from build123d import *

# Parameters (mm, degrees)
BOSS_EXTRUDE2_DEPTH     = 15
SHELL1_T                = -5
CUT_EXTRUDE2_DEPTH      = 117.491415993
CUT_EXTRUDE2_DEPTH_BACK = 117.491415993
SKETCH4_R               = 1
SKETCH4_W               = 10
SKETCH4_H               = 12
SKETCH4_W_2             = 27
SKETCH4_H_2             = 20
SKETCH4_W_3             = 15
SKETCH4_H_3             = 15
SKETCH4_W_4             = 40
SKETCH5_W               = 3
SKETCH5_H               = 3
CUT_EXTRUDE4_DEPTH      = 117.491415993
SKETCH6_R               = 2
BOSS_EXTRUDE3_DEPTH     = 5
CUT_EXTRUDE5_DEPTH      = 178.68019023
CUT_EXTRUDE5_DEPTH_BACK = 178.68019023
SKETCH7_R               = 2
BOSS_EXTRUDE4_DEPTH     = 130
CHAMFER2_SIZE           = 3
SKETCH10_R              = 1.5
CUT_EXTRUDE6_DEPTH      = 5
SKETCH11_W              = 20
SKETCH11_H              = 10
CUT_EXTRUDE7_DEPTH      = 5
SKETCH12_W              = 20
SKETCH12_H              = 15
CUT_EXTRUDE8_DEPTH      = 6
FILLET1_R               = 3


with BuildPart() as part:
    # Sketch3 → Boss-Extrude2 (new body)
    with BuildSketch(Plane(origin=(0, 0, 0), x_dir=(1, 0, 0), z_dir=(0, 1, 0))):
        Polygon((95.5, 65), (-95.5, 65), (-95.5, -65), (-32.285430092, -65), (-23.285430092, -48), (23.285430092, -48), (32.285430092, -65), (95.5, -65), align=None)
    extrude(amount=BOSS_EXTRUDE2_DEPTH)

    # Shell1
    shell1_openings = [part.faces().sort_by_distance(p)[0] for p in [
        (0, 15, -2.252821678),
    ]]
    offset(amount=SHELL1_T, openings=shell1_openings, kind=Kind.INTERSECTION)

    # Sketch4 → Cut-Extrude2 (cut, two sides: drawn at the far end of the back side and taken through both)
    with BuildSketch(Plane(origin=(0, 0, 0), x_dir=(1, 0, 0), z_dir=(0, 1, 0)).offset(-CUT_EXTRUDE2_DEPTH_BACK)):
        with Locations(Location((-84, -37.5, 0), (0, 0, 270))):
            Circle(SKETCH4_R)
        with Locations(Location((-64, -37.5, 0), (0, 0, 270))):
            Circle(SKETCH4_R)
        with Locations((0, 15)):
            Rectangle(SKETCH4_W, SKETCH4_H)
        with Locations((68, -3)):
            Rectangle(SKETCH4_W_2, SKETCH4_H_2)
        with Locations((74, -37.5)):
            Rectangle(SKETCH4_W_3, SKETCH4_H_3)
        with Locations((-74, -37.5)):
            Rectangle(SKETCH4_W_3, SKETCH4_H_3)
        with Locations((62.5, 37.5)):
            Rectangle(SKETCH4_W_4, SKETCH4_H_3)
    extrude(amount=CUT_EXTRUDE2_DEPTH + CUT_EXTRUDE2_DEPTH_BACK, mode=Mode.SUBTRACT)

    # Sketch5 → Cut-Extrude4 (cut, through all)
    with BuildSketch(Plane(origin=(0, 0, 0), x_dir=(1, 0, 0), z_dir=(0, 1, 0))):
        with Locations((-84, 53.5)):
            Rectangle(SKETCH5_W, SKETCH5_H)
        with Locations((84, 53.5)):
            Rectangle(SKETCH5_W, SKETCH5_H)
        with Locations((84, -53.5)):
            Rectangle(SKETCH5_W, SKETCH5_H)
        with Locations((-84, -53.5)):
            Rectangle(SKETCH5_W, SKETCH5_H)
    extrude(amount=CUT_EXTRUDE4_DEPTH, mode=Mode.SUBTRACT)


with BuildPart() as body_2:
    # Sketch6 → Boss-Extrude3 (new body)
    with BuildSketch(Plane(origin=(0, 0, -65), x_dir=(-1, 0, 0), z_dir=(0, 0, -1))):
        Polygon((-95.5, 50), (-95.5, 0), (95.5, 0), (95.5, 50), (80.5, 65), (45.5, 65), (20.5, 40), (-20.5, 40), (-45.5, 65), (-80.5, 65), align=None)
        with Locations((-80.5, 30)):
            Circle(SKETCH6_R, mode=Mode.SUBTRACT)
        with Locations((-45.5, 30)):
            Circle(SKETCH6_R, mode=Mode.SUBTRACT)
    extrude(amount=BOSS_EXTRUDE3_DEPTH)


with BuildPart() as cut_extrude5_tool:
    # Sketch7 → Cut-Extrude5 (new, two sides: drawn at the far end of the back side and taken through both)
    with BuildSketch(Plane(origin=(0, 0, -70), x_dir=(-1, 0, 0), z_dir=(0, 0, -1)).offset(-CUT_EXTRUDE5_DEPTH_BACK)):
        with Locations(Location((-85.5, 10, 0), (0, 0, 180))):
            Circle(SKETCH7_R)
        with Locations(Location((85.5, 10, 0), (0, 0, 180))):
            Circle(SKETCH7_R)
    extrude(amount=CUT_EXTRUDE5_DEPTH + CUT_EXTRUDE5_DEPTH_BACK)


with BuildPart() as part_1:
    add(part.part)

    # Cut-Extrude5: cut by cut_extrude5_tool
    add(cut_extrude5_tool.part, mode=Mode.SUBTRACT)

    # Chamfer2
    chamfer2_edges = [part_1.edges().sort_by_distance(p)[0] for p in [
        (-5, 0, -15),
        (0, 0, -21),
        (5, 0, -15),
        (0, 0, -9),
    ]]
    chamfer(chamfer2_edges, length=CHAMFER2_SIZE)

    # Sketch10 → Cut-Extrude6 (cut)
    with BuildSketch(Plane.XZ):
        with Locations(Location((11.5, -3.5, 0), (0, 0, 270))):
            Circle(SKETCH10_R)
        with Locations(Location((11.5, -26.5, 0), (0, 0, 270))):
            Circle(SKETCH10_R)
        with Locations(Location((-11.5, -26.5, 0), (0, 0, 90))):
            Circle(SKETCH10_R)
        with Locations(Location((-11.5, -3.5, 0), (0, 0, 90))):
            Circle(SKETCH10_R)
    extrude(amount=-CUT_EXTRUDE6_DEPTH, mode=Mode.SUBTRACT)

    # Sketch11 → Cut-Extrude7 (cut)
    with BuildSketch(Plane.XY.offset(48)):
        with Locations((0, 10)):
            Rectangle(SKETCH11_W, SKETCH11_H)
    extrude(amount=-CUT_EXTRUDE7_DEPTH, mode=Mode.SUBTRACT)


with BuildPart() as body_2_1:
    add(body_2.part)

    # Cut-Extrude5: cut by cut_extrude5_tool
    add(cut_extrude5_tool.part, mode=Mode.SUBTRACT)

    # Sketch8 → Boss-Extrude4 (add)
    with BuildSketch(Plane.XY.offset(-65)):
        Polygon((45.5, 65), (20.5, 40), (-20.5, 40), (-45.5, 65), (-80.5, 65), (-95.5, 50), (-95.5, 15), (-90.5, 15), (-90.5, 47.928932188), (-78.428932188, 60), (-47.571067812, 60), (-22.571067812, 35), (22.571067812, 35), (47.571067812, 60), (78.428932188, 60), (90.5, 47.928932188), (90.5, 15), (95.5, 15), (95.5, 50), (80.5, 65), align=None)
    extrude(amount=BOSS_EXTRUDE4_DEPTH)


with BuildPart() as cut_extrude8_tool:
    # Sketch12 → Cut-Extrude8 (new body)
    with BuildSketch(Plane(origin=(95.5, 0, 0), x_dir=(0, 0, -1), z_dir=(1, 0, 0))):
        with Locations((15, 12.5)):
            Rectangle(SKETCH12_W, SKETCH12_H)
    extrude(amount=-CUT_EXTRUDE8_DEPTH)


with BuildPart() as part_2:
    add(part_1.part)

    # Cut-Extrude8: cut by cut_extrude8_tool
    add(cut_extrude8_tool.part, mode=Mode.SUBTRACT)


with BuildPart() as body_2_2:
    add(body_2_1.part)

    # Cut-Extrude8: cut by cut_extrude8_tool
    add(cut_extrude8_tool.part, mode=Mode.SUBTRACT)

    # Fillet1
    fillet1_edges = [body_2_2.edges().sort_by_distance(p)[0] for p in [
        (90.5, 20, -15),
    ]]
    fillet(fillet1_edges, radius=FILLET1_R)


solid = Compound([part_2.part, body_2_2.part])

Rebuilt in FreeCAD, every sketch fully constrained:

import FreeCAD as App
import Part
import Sketcher


def edges_at(feature, points):
    """Names of the edges that pass closest to the given points."""
    edges = feature.Shape.Edges
    near = lambda p: min(range(len(edges)), key=lambda i: edges[i].distToShape(Part.Vertex(*p))[0])
    return sorted({f"Edge{near(p) + 1}" for p in points})


def faces_at(feature, points):
    """Names of the faces that lie closest to the given points."""
    faces = feature.Shape.Faces
    near = lambda p: min(range(len(faces)), key=lambda i: faces[i].distToShape(Part.Vertex(*p))[0])
    return sorted({f"Face{near(p) + 1}" for p in points})

doc = App.newDocument("Part")
body = doc.addObject("PartDesign::Body", "Body")

# Sketch on XZ plane
sketch1 = doc.addObject("Sketcher::SketchObject", "Sketch")
body.addObject(sketch1)
sketch1.AttachmentSupport = (doc.XZ_Plane, [""])
sketch1.MapMode = "FlatFace"
sketch1.addGeometry([
    Part.LineSegment(App.Vector(96, -65, 0), App.Vector(-96, -65, 0)),  # 0
    Part.LineSegment(App.Vector(-96, -65, 0), App.Vector(-96, 65, 0)),  # 1
    Part.LineSegment(App.Vector(-96, 65, 0), App.Vector(-32, 65, 0)),  # 2
    Part.LineSegment(App.Vector(-32, 65, 0), App.Vector(-23, 48, 0)),  # 3
    Part.LineSegment(App.Vector(-23, 48, 0), App.Vector(23, 48, 0)),  # 4
    Part.LineSegment(App.Vector(23, 48, 0), App.Vector(32, 65, 0)),  # 5
    Part.LineSegment(App.Vector(32, 65, 0), App.Vector(96, 65, 0)),  # 6
    Part.LineSegment(App.Vector(96, 65, 0), App.Vector(96, -65, 0)),  # 7
], False)
sketch1.addConstraint([
    Sketcher.Constraint("Coincident", 0, 2, 1, 1),
    Sketcher.Constraint("Coincident", 1, 2, 2, 1),
    Sketcher.Constraint("Coincident", 2, 2, 3, 1),
    Sketcher.Constraint("Coincident", 3, 2, 4, 1),
    Sketcher.Constraint("Coincident", 4, 2, 5, 1),
    Sketcher.Constraint("Coincident", 5, 2, 6, 1),
    Sketcher.Constraint("Coincident", 6, 2, 7, 1),
    Sketcher.Constraint("Coincident", 7, 2, 0, 1),
    Sketcher.Constraint("Horizontal", 0),
    Sketcher.Constraint("Vertical", 1),
    Sketcher.Constraint("Horizontal", 2),
    Sketcher.Constraint("Horizontal", 4),
    Sketcher.Constraint("Horizontal", 6),
    Sketcher.Constraint("Vertical", 7),
    Sketcher.Constraint("Symmetric", 0, 2, 6, 2, -1, 1),
    Sketcher.Constraint("Symmetric", 2, 2, 5, 2, -2),
    Sketcher.Constraint("Equal", 3, 5),
    Sketcher.Constraint("DistanceX", 0, 2, 0, 1, 191.0),
    Sketcher.Constraint("DistanceY", 1, 1, 1, 2, 130.0),
    Sketcher.Constraint("DistanceY", -1, 1, 3, 2, 48.0),
    Sketcher.Constraint("DistanceX", 2, 2, 3, 2, 9.0),
    Sketcher.Constraint("DistanceX", 2, 1, 2, 2, 63.21457),
])
pad1 = doc.addObject("PartDesign::Pad", "Pad")
body.addObject(pad1)
pad1.Profile = sketch1
pad1.Length = 15
pad1.Reversed = True
doc.recompute()

thickness = doc.addObject("PartDesign::Thickness", "Thickness")
body.addObject(thickness)
thickness.Base = (pad1, faces_at(pad1, [(0, 15, 0)]))
thickness.Value = 5
thickness.Reversed = True
thickness.Join = "Intersection"

# Sketch on XZ plane
sketch2 = doc.addObject("Sketcher::SketchObject", "Sketch001")
body.addObject(sketch2)
sketch2.AttachmentSupport = (doc.XZ_Plane, [""])
sketch2.MapMode = "FlatFace"
sketch2.addGeometry([
    Part.Circle(App.Vector(-84, 37.5, 0), App.Vector(0, 0, 1), 1),  # 0
    Part.Circle(App.Vector(-64, 37.5, 0), App.Vector(0, 0, 1), 1),  # 1
    Part.LineSegment(App.Vector(-5, -21, 0), App.Vector(-5, -9, 0)),  # 2
    Part.LineSegment(App.Vector(-5, -9, 0), App.Vector(5, -9, 0)),  # 3
    Part.LineSegment(App.Vector(5, -9, 0), App.Vector(5, -21, 0)),  # 4
    Part.LineSegment(App.Vector(5, -21, 0), App.Vector(-5, -21, 0)),  # 5
    Part.LineSegment(App.Vector(54.5, -7, 0), App.Vector(54.5, 13, 0)),  # 6
    Part.LineSegment(App.Vector(54.5, 13, 0), App.Vector(81.5, 13, 0)),  # 7
    Part.LineSegment(App.Vector(81.5, 13, 0), App.Vector(81.5, -7, 0)),  # 8
    Part.LineSegment(App.Vector(81.5, -7, 0), App.Vector(54.5, -7, 0)),  # 9
    Part.LineSegment(App.Vector(66.5, 30, 0), App.Vector(66.5, 45, 0)),  # 10
    Part.LineSegment(App.Vector(66.5, 45, 0), App.Vector(81.5, 45, 0)),  # 11
    Part.LineSegment(App.Vector(81.5, 45, 0), App.Vector(81.5, 30, 0)),  # 12
    Part.LineSegment(App.Vector(81.5, 30, 0), App.Vector(66.5, 30, 0)),  # 13
    Part.LineSegment(App.Vector(-81.5, 30, 0), App.Vector(-81.5, 45, 0)),  # 14
    Part.LineSegment(App.Vector(-81.5, 45, 0), App.Vector(-66.5, 45, 0)),  # 15
    Part.LineSegment(App.Vector(-66.5, 45, 0), App.Vector(-66.5, 30, 0)),  # 16
    Part.LineSegment(App.Vector(-66.5, 30, 0), App.Vector(-81.5, 30, 0)),  # 17
    Part.LineSegment(App.Vector(42.5, -45, 0), App.Vector(42.5, -30, 0)),  # 18
    Part.LineSegment(App.Vector(42.5, -30, 0), App.Vector(82.5, -30, 0)),  # 19
    Part.LineSegment(App.Vector(82.5, -30, 0), App.Vector(82.5, -45, 0)),  # 20
    Part.LineSegment(App.Vector(82.5, -45, 0), App.Vector(42.5, -45, 0)),  # 21
], False)
sketch2.addConstraint([
    Sketcher.Constraint("Coincident", 2, 2, 3, 1),
    Sketcher.Constraint("Coincident", 3, 2, 4, 1),
    Sketcher.Constraint("Coincident", 4, 2, 5, 1),
    Sketcher.Constraint("Coincident", 5, 2, 2, 1),
    Sketcher.Constraint("Coincident", 6, 2, 7, 1),
    Sketcher.Constraint("Coincident", 7, 2, 8, 1),
    Sketcher.Constraint("Coincident", 8, 2, 9, 1),
    Sketcher.Constraint("Coincident", 9, 2, 6, 1),
    Sketcher.Constraint("Coincident", 10, 2, 11, 1),
    Sketcher.Constraint("Coincident", 11, 2, 12, 1),
    Sketcher.Constraint("Coincident", 12, 2, 13, 1),
    Sketcher.Constraint("Coincident", 13, 2, 10, 1),
    Sketcher.Constraint("Coincident", 14, 2, 15, 1),
    Sketcher.Constraint("Coincident", 15, 2, 16, 1),
    Sketcher.Constraint("Coincident", 16, 2, 17, 1),
    Sketcher.Constraint("Coincident", 17, 2, 14, 1),
    Sketcher.Constraint("Coincident", 18, 2, 19, 1),
    Sketcher.Constraint("Coincident", 19, 2, 20, 1),
    Sketcher.Constraint("Coincident", 20, 2, 21, 1),
    Sketcher.Constraint("Coincident", 21, 2, 18, 1),
    Sketcher.Constraint("Vertical", 2),
    Sketcher.Constraint("Horizontal", 3),
    Sketcher.Constraint("Vertical", 4),
    Sketcher.Constraint("Horizontal", 5),
    Sketcher.Constraint("Vertical", 6),
    Sketcher.Constraint("Horizontal", 7),
    Sketcher.Constraint("Vertical", 8),
    Sketcher.Constraint("Horizontal", 9),
    Sketcher.Constraint("Vertical", 10),
    Sketcher.Constraint("Horizontal", 11),
    Sketcher.Constraint("Vertical", 12),
    Sketcher.Constraint("Horizontal", 13),
    Sketcher.Constraint("Vertical", 14),
    Sketcher.Constraint("Horizontal", 15),
    Sketcher.Constraint("Vertical", 16),
    Sketcher.Constraint("Horizontal", 17),
    Sketcher.Constraint("Vertical", 18),
    Sketcher.Constraint("Horizontal", 19),
    Sketcher.Constraint("Vertical", 20),
    Sketcher.Constraint("Horizontal", 21),
    Sketcher.Constraint("Equal", 0, 1),
    Sketcher.Constraint("Symmetric", 11, 2, 14, 2, -2),
    Sketcher.Constraint("Symmetric", 13, 2, 16, 2, -2),
    Sketcher.Constraint("Horizontal", 0, 3, 1, 3),
    Sketcher.Constraint("Vertical", 8, 2, 11, 2),
    Sketcher.Constraint("Equal", 17, 10),
    Sketcher.Constraint("Equal", 16, 18),
    Sketcher.Constraint("Diameter", 0, 2.0),
    Sketcher.Constraint("DistanceX", 3, 1, 3, 2, 10.0),
    Sketcher.Constraint("DistanceX", 7, 1, 7, 2, 27.0),
    Sketcher.Constraint("DistanceX", 11, 1, 11, 2, 15.0),
    Sketcher.Constraint("DistanceX", 19, 1, 19, 2, 40.0),
    Sketcher.Constraint("DistanceY", 2, 1, 2, 2, 12.0),
    Sketcher.Constraint("DistanceY", 6, 1, 6, 2, 20.0),
    Sketcher.Constraint("DistanceX", 0, 3, -1, 1, 84.0),
    Sketcher.Constraint("DistanceX", 1, 3, -1, 1, 64.0),
    Sketcher.Constraint("DistanceX", 2, 2, -1, 1, 5.0),
    Sketcher.Constraint("DistanceY", 2, 2, -1, 1, 9.0),
    Sketcher.Constraint("DistanceY", -1, 1, 6, 2, 13.0),
    Sketcher.Constraint("DistanceY", -1, 1, 10, 2, 45.0),
    Sketcher.Constraint("DistanceY", 18, 2, -1, 1, 30.0),
    Sketcher.Constraint("DistanceX", 18, 2, 9, 2, 12.0),
    Sketcher.Constraint("DistanceY", -1, 1, 0, 3, 37.5),
    Sketcher.Constraint("DistanceX", -1, 1, 6, 2, 54.5),
])
pocket1 = doc.addObject("PartDesign::Pocket", "Pocket")
body.addObject(pocket1)
pocket1.Profile = sketch2
pocket1.Type = "ThroughAll"
pocket1.Midplane = True

# Sketch on XZ plane
sketch3 = doc.addObject("Sketcher::SketchObject", "Sketch002")
body.addObject(sketch3)
sketch3.AttachmentSupport = (doc.XZ_Plane, [""])
sketch3.MapMode = "FlatFace"
sketch3.addGeometry([
    Part.LineSegment(App.Vector(-85.5, -55, 0), App.Vector(-85.5, -52, 0)),  # 0
    Part.LineSegment(App.Vector(-85.5, -52, 0), App.Vector(-82.5, -52, 0)),  # 1
    Part.LineSegment(App.Vector(-82.5, -52, 0), App.Vector(-82.5, -55, 0)),  # 2
    Part.LineSegment(App.Vector(-82.5, -55, 0), App.Vector(-85.5, -55, 0)),  # 3
    Part.LineSegment(App.Vector(82.5, -55, 0), App.Vector(82.5, -52, 0)),  # 4
    Part.LineSegment(App.Vector(82.5, -52, 0), App.Vector(85.5, -52, 0)),  # 5
    Part.LineSegment(App.Vector(85.5, -52, 0), App.Vector(85.5, -55, 0)),  # 6
    Part.LineSegment(App.Vector(85.5, -55, 0), App.Vector(82.5, -55, 0)),  # 7
    Part.LineSegment(App.Vector(82.5, 52, 0), App.Vector(82.5, 55, 0)),  # 8
    Part.LineSegment(App.Vector(82.5, 55, 0), App.Vector(85.5, 55, 0)),  # 9
    Part.LineSegment(App.Vector(85.5, 55, 0), App.Vector(85.5, 52, 0)),  # 10
    Part.LineSegment(App.Vector(85.5, 52, 0), App.Vector(82.5, 52, 0)),  # 11
    Part.LineSegment(App.Vector(-85.5, 52, 0), App.Vector(-85.5, 55, 0)),  # 12
    Part.LineSegment(App.Vector(-85.5, 55, 0), App.Vector(-82.5, 55, 0)),  # 13
    Part.LineSegment(App.Vector(-82.5, 55, 0), App.Vector(-82.5, 52, 0)),  # 14
    Part.LineSegment(App.Vector(-82.5, 52, 0), App.Vector(-85.5, 52, 0)),  # 15
], False)
sketch3.addConstraint([
    Sketcher.Constraint("Coincident", 0, 2, 1, 1),
    Sketcher.Constraint("Coincident", 1, 2, 2, 1),
    Sketcher.Constraint("Coincident", 2, 2, 3, 1),
    Sketcher.Constraint("Coincident", 3, 2, 0, 1),
    Sketcher.Constraint("Coincident", 4, 2, 5, 1),
    Sketcher.Constraint("Coincident", 5, 2, 6, 1),
    Sketcher.Constraint("Coincident", 6, 2, 7, 1),
    Sketcher.Constraint("Coincident", 7, 2, 4, 1),
    Sketcher.Constraint("Coincident", 8, 2, 9, 1),
    Sketcher.Constraint("Coincident", 9, 2, 10, 1),
    Sketcher.Constraint("Coincident", 10, 2, 11, 1),
    Sketcher.Constraint("Coincident", 11, 2, 8, 1),
    Sketcher.Constraint("Coincident", 12, 2, 13, 1),
    Sketcher.Constraint("Coincident", 13, 2, 14, 1),
    Sketcher.Constraint("Coincident", 14, 2, 15, 1),
    Sketcher.Constraint("Coincident", 15, 2, 12, 1),
    Sketcher.Constraint("Vertical", 0),
    Sketcher.Constraint("Horizontal", 1),
    Sketcher.Constraint("Vertical", 2),
    Sketcher.Constraint("Horizontal", 3),
    Sketcher.Constraint("Vertical", 4),
    Sketcher.Constraint("Horizontal", 5),
    Sketcher.Constraint("Vertical", 6),
    Sketcher.Constraint("Horizontal", 7),
    Sketcher.Constraint("Vertical", 8),
    Sketcher.Constraint("Horizontal", 9),
    Sketcher.Constraint("Vertical", 10),
    Sketcher.Constraint("Horizontal", 11),
    Sketcher.Constraint("Vertical", 12),
    Sketcher.Constraint("Horizontal", 13),
    Sketcher.Constraint("Vertical", 14),
    Sketcher.Constraint("Horizontal", 15),
    Sketcher.Constraint("Symmetric", 2, 2, 8, 2, -1, 1),
    Sketcher.Constraint("Symmetric", 0, 2, 10, 2, -1, 1),
    Sketcher.Constraint("Symmetric", 6, 2, 12, 2, -1, 1),
    Sketcher.Constraint("Symmetric", 4, 2, 14, 2, -1, 1),
    Sketcher.Constraint("Symmetric", 1, 2, 4, 2, -2),
    Sketcher.Constraint("Symmetric", 3, 2, 6, 2, -2),
    Sketcher.Constraint("Equal", 15, 0),
    Sketcher.Constraint("DistanceX", 1, 1, 1, 2, 3.0),
    Sketcher.Constraint("DistanceY", 0, 2, -1, 1, 52.0),
    Sketcher.Constraint("DistanceX", 1, 2, 4, 2, 165.0),
])
pocket2 = doc.addObject("PartDesign::Pocket", "Pocket001")
body.addObject(pocket2)
pocket2.Profile = sketch3
pocket2.Type = "ThroughAll"
body2 = doc.addObject("PartDesign::Body", "Body001")

# Sketch on XY plane
sketch4 = doc.addObject("Sketcher::SketchObject", "Sketch003")
body2.addObject(sketch4)
sketch4.AttachmentSupport = (doc.getObject("XY_Plane001"), [""])
sketch4.MapMode = "FlatFace"
sketch4.AttachmentOffset = App.Placement(App.Vector(0, 0, -65), App.Rotation())
sketch4.addGeometry([
    Part.LineSegment(App.Vector(95.5, 50, 0), App.Vector(95.5, 0, 0)),  # 0
    Part.LineSegment(App.Vector(95.5, 0, 0), App.Vector(-95.5, 0, 0)),  # 1
    Part.LineSegment(App.Vector(-95.5, 0, 0), App.Vector(-95.5, 50, 0)),  # 2
    Part.LineSegment(App.Vector(-95.5, 50, 0), App.Vector(-80.5, 65, 0)),  # 3
    Part.LineSegment(App.Vector(-80.5, 65, 0), App.Vector(-45.5, 65, 0)),  # 4
    Part.LineSegment(App.Vector(-45.5, 65, 0), App.Vector(-20.5, 40, 0)),  # 5
    Part.LineSegment(App.Vector(-20.5, 40, 0), App.Vector(20.5, 40, 0)),  # 6
    Part.LineSegment(App.Vector(20.5, 40, 0), App.Vector(45.5, 65, 0)),  # 7
    Part.LineSegment(App.Vector(45.5, 65, 0), App.Vector(80.5, 65, 0)),  # 8
    Part.LineSegment(App.Vector(80.5, 65, 0), App.Vector(95.5, 50, 0)),  # 9
    Part.Circle(App.Vector(80.5, 30, 0), App.Vector(0, 0, 1), 2),  # 10
    Part.Circle(App.Vector(45.5, 30, 0), App.Vector(0, 0, 1), 2),  # 11
], False)
sketch4.addConstraint([
    Sketcher.Constraint("Coincident", 0, 2, 1, 1),
    Sketcher.Constraint("Coincident", 1, 2, 2, 1),
    Sketcher.Constraint("Coincident", 2, 2, 3, 1),
    Sketcher.Constraint("Coincident", 3, 2, 4, 1),
    Sketcher.Constraint("Coincident", 4, 2, 5, 1),
    Sketcher.Constraint("Coincident", 5, 2, 6, 1),
    Sketcher.Constraint("Coincident", 6, 2, 7, 1),
    Sketcher.Constraint("Coincident", 7, 2, 8, 1),
    Sketcher.Constraint("Coincident", 8, 2, 9, 1),
    Sketcher.Constraint("Coincident", 9, 2, 0, 1),
    Sketcher.Constraint("Vertical", 0),
    Sketcher.Constraint("Horizontal", 1),
    Sketcher.Constraint("Vertical", 2),
    Sketcher.Constraint("Horizontal", 4),
    Sketcher.Constraint("Horizontal", 6),
    Sketcher.Constraint("Horizontal", 8),
    Sketcher.Constraint("Equal", 10, 11),
    Sketcher.Constraint("Symmetric", 0, 2, 1, 2, -1, 1),
    Sketcher.Constraint("Symmetric", 4, 2, 7, 2, -2),
    Sketcher.Constraint("Perpendicular", 3, 5),
    Sketcher.Constraint("Perpendicular", 5, 7),
    Sketcher.Constraint("Perpendicular", 7, 9),
    Sketcher.Constraint("Horizontal", 10, 3, 11, 3),
    Sketcher.Constraint("Horizontal", 2, 2, 9, 2),
    Sketcher.Constraint("Vertical", 11, 3, 7, 2),
    Sketcher.Constraint("Vertical", 10, 3, 8, 2),
    Sketcher.Constraint("Equal", 4, 8),
    Sketcher.Constraint("Diameter", 10, 4.0),
    Sketcher.Constraint("DistanceX", 1, 2, 1, 1, 191.0),
    Sketcher.Constraint("DistanceX", 4, 1, 4, 2, 35.0),
    Sketcher.Constraint("DistanceX", 6, 1, 6, 2, 41.0),
    Sketcher.Constraint("DistanceY", 0, 2, 0, 1, 50.0),
    Sketcher.Constraint("DistanceY", -1, 1, 10, 3, 30.0),
    Sketcher.Constraint("DistanceY", -1, 1, 3, 2, 65.0),
])
pad2 = doc.addObject("PartDesign::Pad", "Pad001")
body2.addObject(pad2)
pad2.Profile = sketch4
pad2.Length = 5
pad2.Reversed = True
body3 = doc.addObject("PartDesign::Body", "Body002")
body3.AllowCompound = True

# Sketch on XY plane
sketch5 = doc.addObject("Sketcher::SketchObject", "Sketch004")
body3.addObject(sketch5)
sketch5.AttachmentSupport = (doc.getObject("XY_Plane002"), [""])
sketch5.MapMode = "FlatFace"
sketch5.AttachmentOffset = App.Placement(App.Vector(0, 0, -70), App.Rotation())
sketch5.addGeometry([
    Part.Circle(App.Vector(85.5, 10, 0), App.Vector(0, 0, 1), 2),
    Part.Circle(App.Vector(-85.5, 10, 0), App.Vector(0, 0, 1), 2),
], False)
sketch5.addConstraint([
    Sketcher.Constraint("Equal", 0, 1),
    Sketcher.Constraint("Symmetric", 0, 3, 1, 3, -2),
    Sketcher.Constraint("Diameter", 0, 4.0),
    Sketcher.Constraint("DistanceY", -1, 1, 0, 3, 10.0),
    Sketcher.Constraint("DistanceX", 1, 3, 0, 3, 171.0),
])
pad3 = doc.addObject("PartDesign::Pad", "Pad002")
body3.addObject(pad3)
pad3.Profile = sketch5
pad3.Type = "TwoLengths"
pad3.Length = 178.68019
pad3.Length2 = 178.68019
pad3.Reversed = True
doc.recompute()

body4 = doc.addObject("PartDesign::Body", "Body003")
body4.BaseFeature = body3
boolean = doc.addObject("PartDesign::Boolean", "Boolean")
body.addObject(boolean)
boolean.Type = "Cut"
boolean.addObjects([body4])
doc.recompute()

chamfer = doc.addObject("PartDesign::Chamfer", "Chamfer")
body.addObject(chamfer)
chamfer.Base = (boolean, edges_at(boolean, [
    (-5, 0, -15),
    (0, 0, -21),
    (5, 0, -15),
    (0, 0, -9),
]))
chamfer.Size = 3

# Sketch on XZ plane
sketch6 = doc.addObject("Sketcher::SketchObject", "Sketch005")
body.addObject(sketch6)
sketch6.AttachmentSupport = (doc.XZ_Plane, [""])
sketch6.MapMode = "FlatFace"
sketch6.addGeometry([
    Part.Circle(App.Vector(11.5, -3.5, 0), App.Vector(0, 0, 1), 1.5),
    Part.Circle(App.Vector(11.5, -26.5, 0), App.Vector(0, 0, 1), 1.5),
    Part.Circle(App.Vector(-11.5, -26.5, 0), App.Vector(0, 0, 1), 1.5),
    Part.Circle(App.Vector(-11.5, -3.5, 0), App.Vector(0, 0, 1), 1.5),
], False)
sketch6.addConstraint([
    Sketcher.Constraint("Equal", 0, 1),
    Sketcher.Constraint("Equal", 1, 2),
    Sketcher.Constraint("Equal", 2, 3),
    Sketcher.Constraint("Symmetric", 1, 3, 2, 3, -2),
    Sketcher.Constraint("Symmetric", 0, 3, 3, 3, -2),
    Sketcher.Constraint("Vertical", 0, 3, 1, 3),
    Sketcher.Constraint("Diameter", 0, 3.0),
    Sketcher.Constraint("DistanceY", 1, 3, 0, 3, 23.0),
    Sketcher.Constraint("DistanceX", 2, 3, 1, 3, 23.0),
    Sketcher.Constraint("DistanceY", 0, 3, -1, 1, 3.5),
])
pocket3 = doc.addObject("PartDesign::Pocket", "Pocket002")
body.addObject(pocket3)
pocket3.Profile = sketch6
pocket3.Length = 5

# Sketch on XY plane
sketch7 = doc.addObject("Sketcher::SketchObject", "Sketch006")
body.addObject(sketch7)
sketch7.AttachmentSupport = (doc.XY_Plane, [""])
sketch7.MapMode = "FlatFace"
sketch7.AttachmentOffset = App.Placement(App.Vector(0, 0, 48), App.Rotation())
sketch7.addGeometry([
    Part.LineSegment(App.Vector(-10, 15, 0), App.Vector(-10, 5, 0)),
    Part.LineSegment(App.Vector(-10, 5, 0), App.Vector(10, 5, 0)),
    Part.LineSegment(App.Vector(10, 5, 0), App.Vector(10, 15, 0)),
    Part.LineSegment(App.Vector(10, 15, 0), App.Vector(-10, 15, 0)),
], False)
sketch7.addConstraint([
    Sketcher.Constraint("Coincident", 0, 2, 1, 1),
    Sketcher.Constraint("Coincident", 1, 2, 2, 1),
    Sketcher.Constraint("Coincident", 2, 2, 3, 1),
    Sketcher.Constraint("Coincident", 3, 2, 0, 1),
    Sketcher.Constraint("Vertical", 0),
    Sketcher.Constraint("Horizontal", 1),
    Sketcher.Constraint("Vertical", 2),
    Sketcher.Constraint("Horizontal", 3),
    Sketcher.Constraint("DistanceX", 1, 1, 1, 2, 20.0),
    Sketcher.Constraint("DistanceY", 0, 2, 0, 1, 10.0),
    Sketcher.Constraint("DistanceX", 0, 2, -1, 1, 10.0),
    Sketcher.Constraint("DistanceY", -1, 1, 0, 2, 5.0),
])
pocket4 = doc.addObject("PartDesign::Pocket", "Pocket003")
body.addObject(pocket4)
pocket4.Profile = sketch7
pocket4.Length = 5
doc.recompute()

boolean2 = doc.addObject("PartDesign::Boolean", "Boolean001")
body2.addObject(boolean2)
boolean2.Type = "Cut"
boolean2.addObjects([body3])

# Sketch on XY plane
sketch8 = doc.addObject("Sketcher::SketchObject", "Sketch007")
body2.addObject(sketch8)
sketch8.AttachmentSupport = (doc.getObject("XY_Plane001"), [""])
sketch8.MapMode = "FlatFace"
sketch8.AttachmentOffset = App.Placement(App.Vector(0, 0, -65), App.Rotation())
sketch8.addGeometry([
    Part.LineSegment(App.Vector(46, 65, 0), App.Vector(20, 40, 0)),  # 0
    Part.LineSegment(App.Vector(20, 40, 0), App.Vector(-20, 40, 0)),  # 1
    Part.LineSegment(App.Vector(-20, 40, 0), App.Vector(-46, 65, 0)),  # 2
    Part.LineSegment(App.Vector(-46, 65, 0), App.Vector(-80, 65, 0)),  # 3
    Part.LineSegment(App.Vector(-80, 65, 0), App.Vector(-96, 50, 0)),  # 4
    Part.LineSegment(App.Vector(-96, 50, 0), App.Vector(-96, 15, 0)),  # 5
    Part.LineSegment(App.Vector(-96, 15, 0), App.Vector(-90, 15, 0)),  # 6
    Part.LineSegment(App.Vector(-90, 15, 0), App.Vector(-90, 48, 0)),  # 7
    Part.LineSegment(App.Vector(-90, 48, 0), App.Vector(-78, 60, 0)),  # 8
    Part.LineSegment(App.Vector(-78, 60, 0), App.Vector(-48, 60, 0)),  # 9
    Part.LineSegment(App.Vector(-48, 60, 0), App.Vector(-23, 35, 0)),  # 10
    Part.LineSegment(App.Vector(-23, 35, 0), App.Vector(23, 35, 0)),  # 11
    Part.LineSegment(App.Vector(23, 35, 0), App.Vector(48, 60, 0)),  # 12
    Part.LineSegment(App.Vector(48, 60, 0), App.Vector(78, 60, 0)),  # 13
    Part.LineSegment(App.Vector(78, 60, 0), App.Vector(90, 48, 0)),  # 14
    Part.LineSegment(App.Vector(90, 48, 0), App.Vector(90, 15, 0)),  # 15
    Part.LineSegment(App.Vector(90, 15, 0), App.Vector(96, 15, 0)),  # 16
    Part.LineSegment(App.Vector(96, 15, 0), App.Vector(96, 50, 0)),  # 17
    Part.LineSegment(App.Vector(96, 50, 0), App.Vector(80, 65, 0)),  # 18
    Part.LineSegment(App.Vector(80, 65, 0), App.Vector(46, 65, 0)),  # 19
], False)
sketch8.addConstraint([
    Sketcher.Constraint("Coincident", 0, 2, 1, 1),
    Sketcher.Constraint("Coincident", 1, 2, 2, 1),
    Sketcher.Constraint("Coincident", 2, 2, 3, 1),
    Sketcher.Constraint("Coincident", 3, 2, 4, 1),
    Sketcher.Constraint("Coincident", 4, 2, 5, 1),
    Sketcher.Constraint("Coincident", 5, 2, 6, 1),
    Sketcher.Constraint("Coincident", 6, 2, 7, 1),
    Sketcher.Constraint("Coincident", 7, 2, 8, 1),
    Sketcher.Constraint("Coincident", 8, 2, 9, 1),
    Sketcher.Constraint("Coincident", 9, 2, 10, 1),
    Sketcher.Constraint("Coincident", 10, 2, 11, 1),
    Sketcher.Constraint("Coincident", 11, 2, 12, 1),
    Sketcher.Constraint("Coincident", 12, 2, 13, 1),
    Sketcher.Constraint("Coincident", 13, 2, 14, 1),
    Sketcher.Constraint("Coincident", 14, 2, 15, 1),
    Sketcher.Constraint("Coincident", 15, 2, 16, 1),
    Sketcher.Constraint("Coincident", 16, 2, 17, 1),
    Sketcher.Constraint("Coincident", 17, 2, 18, 1),
    Sketcher.Constraint("Coincident", 18, 2, 19, 1),
    Sketcher.Constraint("Coincident", 19, 2, 0, 1),
    Sketcher.Constraint("Horizontal", 1),
    Sketcher.Constraint("Horizontal", 3),
    Sketcher.Constraint("Vertical", 5),
    Sketcher.Constraint("Horizontal", 6),
    Sketcher.Constraint("Vertical", 7),
    Sketcher.Constraint("Horizontal", 9),
    Sketcher.Constraint("Horizontal", 11),
    Sketcher.Constraint("Horizontal", 13),
    Sketcher.Constraint("Vertical", 15),
    Sketcher.Constraint("Horizontal", 16),
    Sketcher.Constraint("Vertical", 17),
    Sketcher.Constraint("Horizontal", 19),
    Sketcher.Constraint("Symmetric", 9, 2, 12, 2, -2),
    Sketcher.Constraint("Symmetric", 7, 2, 14, 2, -2),
    Sketcher.Constraint("Symmetric", 5, 2, 16, 2, -2),
    Sketcher.Constraint("Symmetric", 3, 2, 18, 2, -2),
    Sketcher.Constraint("Perpendicular", 0, 2),
    Sketcher.Constraint("Perpendicular", 2, 4),
    Sketcher.Constraint("Parallel", 4, 8),
    Sketcher.Constraint("Perpendicular", 8, 10),
    Sketcher.Constraint("Perpendicular", 10, 12),
    Sketcher.Constraint("Perpendicular", 12, 14),
    Sketcher.Constraint("Parallel", 14, 18),
    Sketcher.Constraint("Horizontal", 4, 2, 17, 2),
    Sketcher.Constraint("Equal", 3, 19),
    Sketcher.Constraint("Equal", 19, 5),
    Sketcher.Constraint("Equal", 2, 10),
    Sketcher.Constraint("DistanceX", 1, 2, 1, 1, 41.0),
    Sketcher.Constraint("DistanceX", 3, 2, 3, 1, 35.0),
    Sketcher.Constraint("DistanceX", 6, 1, 6, 2, 5.0),
    Sketcher.Constraint("DistanceY", -1, 1, 0, 2, 40.0),
    Sketcher.Constraint("DistanceY", -1, 1, 2, 2, 65.0),
    Sketcher.Constraint("DistanceY", -1, 1, 4, 2, 50.0),
    Sketcher.Constraint("DistanceY", -1, 1, 8, 2, 60.0),
    Sketcher.Constraint("DistanceX", 10, 2, 13, 2, 101.0),
    Sketcher.Constraint("DistanceX", 9, 1, 9, 2, 30.857864),
])
pad4 = doc.addObject("PartDesign::Pad", "Pad003")
body2.addObject(pad4)
pad4.Profile = sketch8
pad4.Length = 130
body5 = doc.addObject("PartDesign::Body", "Body004")

# Sketch on YZ plane
sketch9 = doc.addObject("Sketcher::SketchObject", "Sketch008")
body5.addObject(sketch9)
sketch9.AttachmentSupport = (doc.getObject("YZ_Plane004"), [""])
sketch9.MapMode = "FlatFace"
sketch9.AttachmentOffset = App.Placement(App.Vector(0, 0, 95.5), App.Rotation())
sketch9.addGeometry([
    Part.LineSegment(App.Vector(20, -5, 0), App.Vector(5, -5, 0)),
    Part.LineSegment(App.Vector(5, -5, 0), App.Vector(5, -25, 0)),
    Part.LineSegment(App.Vector(5, -25, 0), App.Vector(20, -25, 0)),
    Part.LineSegment(App.Vector(20, -25, 0), App.Vector(20, -5, 0)),
], False)
sketch9.addConstraint([
    Sketcher.Constraint("Coincident", 0, 2, 1, 1),
    Sketcher.Constraint("Coincident", 1, 2, 2, 1),
    Sketcher.Constraint("Coincident", 2, 2, 3, 1),
    Sketcher.Constraint("Coincident", 3, 2, 0, 1),
    Sketcher.Constraint("Horizontal", 0),
    Sketcher.Constraint("Vertical", 1),
    Sketcher.Constraint("Horizontal", 2),
    Sketcher.Constraint("Vertical", 3),
    Sketcher.Constraint("DistanceX", 0, 2, 0, 1, 15.0),
    Sketcher.Constraint("DistanceY", 1, 2, 1, 1, 20.0),
    Sketcher.Constraint("DistanceX", -1, 1, 0, 2, 5.0),
    Sketcher.Constraint("DistanceY", 0, 2, -1, 1, 5.0),
])
pad5 = doc.addObject("PartDesign::Pad", "Pad004")
body5.addObject(pad5)
pad5.Profile = sketch9
pad5.Length = 6
pad5.Reversed = True
doc.recompute()

body6 = doc.addObject("PartDesign::Body", "Body005")
body6.BaseFeature = body5
boolean3 = doc.addObject("PartDesign::Boolean", "Boolean002")
body.addObject(boolean3)
boolean3.Type = "Cut"
boolean3.addObjects([body6])
doc.recompute()

boolean4 = doc.addObject("PartDesign::Boolean", "Boolean003")
body2.addObject(boolean4)
boolean4.Type = "Cut"
boolean4.addObjects([body5])
doc.recompute()

fillet = doc.addObject("PartDesign::Fillet", "Fillet")
body2.addObject(fillet)
fillet.Base = (boolean4, edges_at(boolean4, [(90.5, 20, -15)]))
fillet.Radius = 3

doc.recompute()
